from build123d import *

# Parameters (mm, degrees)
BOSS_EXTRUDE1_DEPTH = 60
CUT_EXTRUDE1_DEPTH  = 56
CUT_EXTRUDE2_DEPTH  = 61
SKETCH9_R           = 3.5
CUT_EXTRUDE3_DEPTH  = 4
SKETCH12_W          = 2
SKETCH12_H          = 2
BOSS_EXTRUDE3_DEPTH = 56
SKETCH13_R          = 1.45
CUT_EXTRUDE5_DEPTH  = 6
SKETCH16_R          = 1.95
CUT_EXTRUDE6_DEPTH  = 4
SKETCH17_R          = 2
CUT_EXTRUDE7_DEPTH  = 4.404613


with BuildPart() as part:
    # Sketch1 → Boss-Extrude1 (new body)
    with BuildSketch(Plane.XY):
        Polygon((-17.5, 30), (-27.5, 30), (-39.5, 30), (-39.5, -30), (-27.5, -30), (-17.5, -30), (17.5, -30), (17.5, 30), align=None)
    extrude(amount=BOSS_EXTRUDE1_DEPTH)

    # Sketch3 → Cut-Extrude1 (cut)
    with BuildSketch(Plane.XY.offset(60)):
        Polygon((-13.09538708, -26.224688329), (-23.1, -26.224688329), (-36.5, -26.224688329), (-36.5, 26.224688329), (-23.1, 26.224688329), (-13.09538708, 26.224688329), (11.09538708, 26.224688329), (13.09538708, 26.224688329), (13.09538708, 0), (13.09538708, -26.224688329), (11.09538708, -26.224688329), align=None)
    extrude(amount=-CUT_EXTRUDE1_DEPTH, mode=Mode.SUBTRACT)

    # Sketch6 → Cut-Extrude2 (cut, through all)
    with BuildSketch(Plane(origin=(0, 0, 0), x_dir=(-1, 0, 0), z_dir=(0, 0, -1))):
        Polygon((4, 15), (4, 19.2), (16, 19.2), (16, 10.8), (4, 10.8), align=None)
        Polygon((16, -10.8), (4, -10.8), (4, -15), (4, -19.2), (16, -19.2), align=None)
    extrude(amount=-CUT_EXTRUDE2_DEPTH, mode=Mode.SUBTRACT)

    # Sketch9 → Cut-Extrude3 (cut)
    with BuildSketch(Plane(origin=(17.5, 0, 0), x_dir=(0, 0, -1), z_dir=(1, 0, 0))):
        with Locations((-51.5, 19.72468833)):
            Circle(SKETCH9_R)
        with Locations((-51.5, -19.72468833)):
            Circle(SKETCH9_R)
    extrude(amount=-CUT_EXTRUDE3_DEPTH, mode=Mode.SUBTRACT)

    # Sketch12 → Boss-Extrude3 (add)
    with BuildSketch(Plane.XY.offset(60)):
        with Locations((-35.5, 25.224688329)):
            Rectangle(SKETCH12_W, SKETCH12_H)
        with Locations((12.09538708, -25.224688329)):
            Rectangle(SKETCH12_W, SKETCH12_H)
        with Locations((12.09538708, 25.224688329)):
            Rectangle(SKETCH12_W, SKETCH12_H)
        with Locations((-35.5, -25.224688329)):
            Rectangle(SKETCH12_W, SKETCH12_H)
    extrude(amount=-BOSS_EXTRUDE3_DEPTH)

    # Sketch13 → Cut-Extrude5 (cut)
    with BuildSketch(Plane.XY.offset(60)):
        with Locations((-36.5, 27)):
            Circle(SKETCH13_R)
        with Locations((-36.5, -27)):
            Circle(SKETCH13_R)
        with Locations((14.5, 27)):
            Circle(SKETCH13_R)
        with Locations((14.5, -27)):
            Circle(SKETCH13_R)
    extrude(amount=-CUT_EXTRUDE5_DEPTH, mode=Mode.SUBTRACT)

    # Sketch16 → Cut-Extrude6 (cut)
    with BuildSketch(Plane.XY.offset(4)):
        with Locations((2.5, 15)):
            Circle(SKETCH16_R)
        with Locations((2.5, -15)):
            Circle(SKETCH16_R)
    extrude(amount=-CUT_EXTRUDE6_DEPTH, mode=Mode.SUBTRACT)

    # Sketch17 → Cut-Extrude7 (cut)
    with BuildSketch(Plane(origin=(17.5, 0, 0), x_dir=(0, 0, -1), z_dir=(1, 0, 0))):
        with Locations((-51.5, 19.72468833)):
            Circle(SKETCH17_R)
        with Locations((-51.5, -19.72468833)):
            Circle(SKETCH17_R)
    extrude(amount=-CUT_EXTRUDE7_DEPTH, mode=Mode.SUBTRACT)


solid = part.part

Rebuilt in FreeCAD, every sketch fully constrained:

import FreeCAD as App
import Part
import Sketcher

V = App.Vector
Q = App.Units.Quantity


def add_polygon(sketch, points):
    """Adds a closed chain of lines whose ends are joined by coincident constraints."""
    first, n = sketch.GeometryCount, len(points)
    for a, b in zip(points, points[1:] + points[:1]):
        sketch.addGeometry(Part.LineSegment(App.Vector(*a, 0), App.Vector(*b, 0)), False)
    for i in range(n):
        sketch.addConstraint(Sketcher.Constraint("Coincident", first + i, 2, first + (i + 1) % n, 1))

doc = App.newDocument("Part")
params = doc.addObject("Spreadsheet::Sheet", "Params")
for row, (alias, value) in enumerate([
    ("sketch1_width", "57 mm"),
    ("sketch1_height", "60 mm"),
    ("pad1_length", "60 mm"),
    ("pocket1_length", "56 mm"),
    ("sketch3_width", "12 mm"),
    ("sketch3_height", "8.4 mm"),
    ("sketch4_diameter", "7 mm"),
    ("pocket3_length", "4 mm"),
    ("sketch5_width", "2 mm"),
    ("pad2_length", "56 mm"),
    ("sketch6_diameter", "2.9 mm"),
    ("pocket4_length", "6 mm"),
    ("sketch7_diameter", "3.9 mm"),
    ("pocket5_length", "4 mm"),
    ("sketch8_diameter", "4 mm"),
    ("pocket6_length", "4.404613 mm"),
], start=1):
    params.set(f"A{row}", alias)
    params.set(f"B{row}", "=" + value)
    params.setAlias(f"B{row}", alias)

body = doc.addObject("PartDesign::Body", "Body")

sketch1 = body.newObject("Sketcher::SketchObject", "Sketch")
sketch1.AttachmentSupport = (doc.getObject("XY_Plane"), [""])
sketch1.MapMode = "FlatFace"
add_polygon(sketch1, [(-40, 30), (-40, -30), (18, -30), (18, 30)])
sketch1.addConstraint([
    Sketcher.Constraint("Vertical", 0),
    Sketcher.Constraint("Horizontal", 1),
    Sketcher.Constraint("Vertical", 2),
    Sketcher.Constraint("Horizontal", 3),
    Sketcher.Constraint("DistanceX", 1, 1, 1, 2, Q("57 mm")),
    Sketcher.Constraint("DistanceY", 0, 2, 0, 1, Q("60 mm")),
    Sketcher.Constraint("DistanceY", 0, 2, -1, 1, Q("30 mm")),
    Sketcher.Constraint("DistanceX", 0, 2, -1, 1, Q("39.5 mm")),
])
sketch1.setExpression("Constraints[8]", "Params.sketch1_width")
sketch1.setExpression("Constraints[9]", "Params.sketch1_height")
pad1 = body.newObject("PartDesign::Pad", "Pad")
pad1.Profile = sketch1
pad1.setExpression("Length", "Params.pad1_length")

sketch2 = body.newObject("Sketcher::SketchObject", "Sketch001")
sketch2.AttachmentSupport = (doc.getObject("XY_Plane"), [""])
sketch2.MapMode = "FlatFace"
sketch2.AttachmentOffset = App.Placement(V(0, 0, 60), App.Rotation())
add_polygon(sketch2, [(-36, -26), (13, -26), (13, 26), (-36, 26)])
sketch2.addConstraint([
    Sketcher.Constraint("Horizontal", 0),
    Sketcher.Constraint("Vertical", 1),
    Sketcher.Constraint("Horizontal", 2),
    Sketcher.Constraint("Vertical", 3),
    Sketcher.Constraint("DistanceX", 2, 2, -1, 1, Q("36.5 mm")),
    Sketcher.Constraint("DistanceX", 0, 1, 0, 2, Q("49.595387 mm")),
    Sketcher.Constraint("DistanceY", 1, 1, 1, 2, Q("52.449377 mm")),
    Sketcher.Constraint("DistanceY", 0, 2, -1, 1, Q("26.224688 mm")),
])
pocket1 = body.newObject("PartDesign::Pocket", "Pocket")
pocket1.Profile = sketch2
pocket1.setExpression("Length", "Params.pocket1_length")

sketch3 = body.newObject("Sketcher::SketchObject", "Sketch002")
sketch3.AttachmentSupport = (doc.getObject("XY_Plane"), [""])
sketch3.MapMode = "FlatFace"
add_polygon(sketch3, [(-4, 19), (-4, 11), (-16, 11), (-16, 19)])
add_polygon(sketch3, [(-16, -11), (-4, -11), (-4, -19), (-16, -19)])
sketch3.addConstraint([
    Sketcher.Constraint("Vertical", 0),
    Sketcher.Constraint("Horizontal", 1),
    Sketcher.Constraint("Vertical", 2),
    Sketcher.Constraint("Horizontal", 3),
    Sketcher.Constraint("Horizontal", 4),
    Sketcher.Constraint("Vertical", 5),
    Sketcher.Constraint("Horizontal", 6),
    Sketcher.Constraint("Vertical", 7),
    Sketcher.Constraint("Symmetric", 0, 2, 4, 2, -1),
    Sketcher.Constraint("Symmetric", 2, 2, 6, 2, -1),
    Sketcher.Constraint("DistanceX", 1, 2, 1, 1, Q("12 mm")),
    Sketcher.Constraint("DistanceY", 0, 2, 0, 1, Q("8.4 mm")),
    Sketcher.Constraint("DistanceX", 0, 2, -1, 1, Q("4 mm")),
    Sketcher.Constraint("DistanceY", 4, 2, 3, 2, Q("30 mm")),
])
sketch3.setExpression("Constraints[18]", "Params.sketch3_width")
sketch3.setExpression("Constraints[19]", "Params.sketch3_height")
pocket2 = body.newObject("PartDesign::Pocket", "Pocket001")
pocket2.Profile = sketch3
pocket2.Type = "ThroughAll"
pocket2.Reversed = True

sketch4 = body.newObject("Sketcher::SketchObject", "Sketch003")
sketch4.AttachmentSupport = (doc.getObject("YZ_Plane"), [""])
sketch4.MapMode = "FlatFace"
sketch4.AttachmentOffset = App.Placement(V(0, 0, 17.5), App.Rotation())
sketch4.addGeometry([
    Part.Circle(V(19.7, 51.5, 0), V(0, 0, 1), 3.5),
    Part.Circle(V(-19.7, 51.5, 0), V(0, 0, 1), 3.5),
], False)
sketch4.addConstraint([
    Sketcher.Constraint("Equal", 0, 1),
    Sketcher.Constraint("Symmetric", 0, 3, 1, 3, -2),
    Sketcher.Constraint("Diameter", 0, Q("7 mm")),
    Sketcher.Constraint("DistanceY", -1, 1, 0, 3, Q("51.5 mm")),
    Sketcher.Constraint("DistanceX", -1, 1, 0, 3, Q("19.724688 mm")),
])
sketch4.setExpression("Constraints[2]", "Params.sketch4_diameter")
pocket3 = body.newObject("PartDesign::Pocket", "Pocket002")
pocket3.Profile = sketch4
pocket3.setExpression("Length", "Params.pocket3_length")

sketch5 = body.newObject("Sketcher::SketchObject", "Sketch004")
sketch5.AttachmentSupport = (doc.getObject("XY_Plane"), [""])
sketch5.MapMode = "FlatFace"
sketch5.AttachmentOffset = App.Placement(V(0, 0, 60), App.Rotation())
add_polygon(sketch5, [(-36.5, 26.2), (-36.5, 24.2), (-34.5, 24.2), (-34.5, 26.2)])
add_polygon(sketch5, [(11.1, -24.2), (11.1, -26.2), (13.1, -26.2), (13.1, -24.2)])
add_polygon(sketch5, [(11.1, 26.2), (11.1, 24.2), (13.1, 24.2), (13.1, 26.2)])
add_polygon(sketch5, [(-36.5, -24.2), (-36.5, -26.2), (-34.5, -26.2), (-34.5, -24.2)])
sketch5.addConstraint([
    Sketcher.Constraint("Vertical", 0),
    Sketcher.Constraint("Horizontal", 1),
    Sketcher.Constraint("Vertical", 2),
    Sketcher.Constraint("Horizontal", 3),
    Sketcher.Constraint("Vertical", 4),
    Sketcher.Constraint("Horizontal", 5),
    Sketcher.Constraint("Vertical", 6),
    Sketcher.Constraint("Horizontal", 7),
    Sketcher.Constraint("Vertical", 8),
    Sketcher.Constraint("Horizontal", 9),
    Sketcher.Constraint("Vertical", 10),
    Sketcher.Constraint("Horizontal", 11),
    Sketcher.Constraint("Vertical", 12),
    Sketcher.Constraint("Horizontal", 13),
    Sketcher.Constraint("Vertical", 14),
    Sketcher.Constraint("Horizontal", 15),
    Sketcher.Constraint("Symmetric", 7, 2, 8, 2, -1),
    Sketcher.Constraint("Symmetric", 5, 2, 10, 2, -1),
    Sketcher.Constraint("Symmetric", 3, 2, 12, 2, -1),
    Sketcher.Constraint("Symmetric", 1, 2, 14, 2, -1),
    Sketcher.Constraint("Horizontal", 1, 2, 8, 2),
    Sketcher.Constraint("Horizontal", 3, 2, 10, 2),
    Sketcher.Constraint("Equal", 3, 5),
    Sketcher.Constraint("Equal", 15, 0),
    Sketcher.Constraint("DistanceX", 1, 1, 1, 2, Q("2 mm")),
    Sketcher.Constraint("DistanceX", 0, 2, -1, 1, Q("36.5 mm")),
    Sketcher.Constraint("DistanceY", -1, 1, 0, 2, Q("24.224688 mm")),
    Sketcher.Constraint("DistanceX", -1, 1, 4, 2, Q("11.095387 mm")),
])
sketch5.setExpression("Constraints[40]", "Params.sketch5_width")
pad2 = body.newObject("PartDesign::Pad", "Pad001")
pad2.Profile = sketch5
pad2.setExpression("Length", "Params.pad2_length")
pad2.Reversed = True

sketch6 = body.newObject("Sketcher::SketchObject", "Sketch005")
sketch6.AttachmentSupport = (doc.getObject("XY_Plane"), [""])
sketch6.MapMode = "FlatFace"
sketch6.AttachmentOffset = App.Placement(V(0, 0, 60), App.Rotation())
sketch6.addGeometry([
    Part.Circle(V(-36.5, 27, 0), V(0, 0, 1), 1.4),
    Part.Circle(V(-36.5, -27, 0), V(0, 0, 1), 1.4),
    Part.Circle(V(14.5, 27, 0), V(0, 0, 1), 1.4),
    Part.Circle(V(14.5, -27, 0), V(0, 0, 1), 1.4),
], False)
sketch6.addConstraint([
    Sketcher.Constraint("Equal", 0, 1),
    Sketcher.Constraint("Equal", 1, 2),
    Sketcher.Constraint("Equal", 2, 3),
    Sketcher.Constraint("Symmetric", 0, 3, 1, 3, -1),
    Sketcher.Constraint("Symmetric", 2, 3, 3, 3, -1),
    Sketcher.Constraint("Horizontal", 0, 3, 2, 3),
    Sketcher.Constraint("Diameter", 0, Q("2.9 mm")),
    Sketcher.Constraint("DistanceY", -1, 1, 0, 3, Q("27 mm")),
    Sketcher.Constraint("DistanceX", 0, 3, 2, 3, Q("51 mm")),
    Sketcher.Constraint("DistanceX", 0, 3, -1, 1, Q("36.5 mm")),
])
sketch6.setExpression("Constraints[6]", "Params.sketch6_diameter")
pocket4 = body.newObject("PartDesign::Pocket", "Pocket003")
pocket4.Profile = sketch6
pocket4.setExpression("Length", "Params.pocket4_length")

sketch7 = body.newObject("Sketcher::SketchObject", "Sketch006")
sketch7.AttachmentSupport = (doc.getObject("XY_Plane"), [""])
sketch7.MapMode = "FlatFace"
sketch7.AttachmentOffset = App.Placement(V(0, 0, 4), App.Rotation())
sketch7.addGeometry([
    Part.Circle(V(2.5, 15, 0), V(0, 0, 1), 1.9),
    Part.Circle(V(2.5, -15, 0), V(0, 0, 1), 1.9),
], False)
sketch7.addConstraint([
    Sketcher.Constraint("Equal", 0, 1),
    Sketcher.Constraint("Symmetric", 0, 3, 1, 3, -1),
    Sketcher.Constraint("Diameter", 0, Q("3.9 mm")),
    Sketcher.Constraint("DistanceY", -1, 1, 0, 3, Q("15 mm")),
    Sketcher.Constraint("DistanceX", -1, 1, 0, 3, Q("2.5 mm")),
])
sketch7.setExpression("Constraints[2]", "Params.sketch7_diameter")
pocket5 = body.newObject("PartDesign::Pocket", "Pocket004")
pocket5.Profile = sketch7
pocket5.setExpression("Length", "Params.pocket5_length")

sketch8 = body.newObject("Sketcher::SketchObject", "Sketch007")
sketch8.AttachmentSupport = (doc.getObject("YZ_Plane"), [""])
sketch8.MapMode = "FlatFace"
sketch8.AttachmentOffset = App.Placement(V(0, 0, 17.5), App.Rotation())
sketch8.addGeometry([
    Part.Circle(V(19.7, 51.5, 0), V(0, 0, 1), 2),
    Part.Circle(V(-19.7, 51.5, 0), V(0, 0, 1), 2),
], False)
sketch8.addConstraint([
    Sketcher.Constraint("Equal", 0, 1),
    Sketcher.Constraint("Symmetric", 0, 3, 1, 3, -2),
    Sketcher.Constraint("Diameter", 0, Q("4 mm")),
    Sketcher.Constraint("DistanceY", -1, 1, 0, 3, Q("51.5 mm")),
    Sketcher.Constraint("DistanceX", -1, 1, 0, 3, Q("19.724688 mm")),
])
sketch8.setExpression("Constraints[2]", "Params.sketch8_diameter")
pocket6 = body.newObject("PartDesign::Pocket", "Pocket005")
pocket6.Profile = sketch8
pocket6.setExpression("Length", "Params.pocket6_length")

doc.recompute()
